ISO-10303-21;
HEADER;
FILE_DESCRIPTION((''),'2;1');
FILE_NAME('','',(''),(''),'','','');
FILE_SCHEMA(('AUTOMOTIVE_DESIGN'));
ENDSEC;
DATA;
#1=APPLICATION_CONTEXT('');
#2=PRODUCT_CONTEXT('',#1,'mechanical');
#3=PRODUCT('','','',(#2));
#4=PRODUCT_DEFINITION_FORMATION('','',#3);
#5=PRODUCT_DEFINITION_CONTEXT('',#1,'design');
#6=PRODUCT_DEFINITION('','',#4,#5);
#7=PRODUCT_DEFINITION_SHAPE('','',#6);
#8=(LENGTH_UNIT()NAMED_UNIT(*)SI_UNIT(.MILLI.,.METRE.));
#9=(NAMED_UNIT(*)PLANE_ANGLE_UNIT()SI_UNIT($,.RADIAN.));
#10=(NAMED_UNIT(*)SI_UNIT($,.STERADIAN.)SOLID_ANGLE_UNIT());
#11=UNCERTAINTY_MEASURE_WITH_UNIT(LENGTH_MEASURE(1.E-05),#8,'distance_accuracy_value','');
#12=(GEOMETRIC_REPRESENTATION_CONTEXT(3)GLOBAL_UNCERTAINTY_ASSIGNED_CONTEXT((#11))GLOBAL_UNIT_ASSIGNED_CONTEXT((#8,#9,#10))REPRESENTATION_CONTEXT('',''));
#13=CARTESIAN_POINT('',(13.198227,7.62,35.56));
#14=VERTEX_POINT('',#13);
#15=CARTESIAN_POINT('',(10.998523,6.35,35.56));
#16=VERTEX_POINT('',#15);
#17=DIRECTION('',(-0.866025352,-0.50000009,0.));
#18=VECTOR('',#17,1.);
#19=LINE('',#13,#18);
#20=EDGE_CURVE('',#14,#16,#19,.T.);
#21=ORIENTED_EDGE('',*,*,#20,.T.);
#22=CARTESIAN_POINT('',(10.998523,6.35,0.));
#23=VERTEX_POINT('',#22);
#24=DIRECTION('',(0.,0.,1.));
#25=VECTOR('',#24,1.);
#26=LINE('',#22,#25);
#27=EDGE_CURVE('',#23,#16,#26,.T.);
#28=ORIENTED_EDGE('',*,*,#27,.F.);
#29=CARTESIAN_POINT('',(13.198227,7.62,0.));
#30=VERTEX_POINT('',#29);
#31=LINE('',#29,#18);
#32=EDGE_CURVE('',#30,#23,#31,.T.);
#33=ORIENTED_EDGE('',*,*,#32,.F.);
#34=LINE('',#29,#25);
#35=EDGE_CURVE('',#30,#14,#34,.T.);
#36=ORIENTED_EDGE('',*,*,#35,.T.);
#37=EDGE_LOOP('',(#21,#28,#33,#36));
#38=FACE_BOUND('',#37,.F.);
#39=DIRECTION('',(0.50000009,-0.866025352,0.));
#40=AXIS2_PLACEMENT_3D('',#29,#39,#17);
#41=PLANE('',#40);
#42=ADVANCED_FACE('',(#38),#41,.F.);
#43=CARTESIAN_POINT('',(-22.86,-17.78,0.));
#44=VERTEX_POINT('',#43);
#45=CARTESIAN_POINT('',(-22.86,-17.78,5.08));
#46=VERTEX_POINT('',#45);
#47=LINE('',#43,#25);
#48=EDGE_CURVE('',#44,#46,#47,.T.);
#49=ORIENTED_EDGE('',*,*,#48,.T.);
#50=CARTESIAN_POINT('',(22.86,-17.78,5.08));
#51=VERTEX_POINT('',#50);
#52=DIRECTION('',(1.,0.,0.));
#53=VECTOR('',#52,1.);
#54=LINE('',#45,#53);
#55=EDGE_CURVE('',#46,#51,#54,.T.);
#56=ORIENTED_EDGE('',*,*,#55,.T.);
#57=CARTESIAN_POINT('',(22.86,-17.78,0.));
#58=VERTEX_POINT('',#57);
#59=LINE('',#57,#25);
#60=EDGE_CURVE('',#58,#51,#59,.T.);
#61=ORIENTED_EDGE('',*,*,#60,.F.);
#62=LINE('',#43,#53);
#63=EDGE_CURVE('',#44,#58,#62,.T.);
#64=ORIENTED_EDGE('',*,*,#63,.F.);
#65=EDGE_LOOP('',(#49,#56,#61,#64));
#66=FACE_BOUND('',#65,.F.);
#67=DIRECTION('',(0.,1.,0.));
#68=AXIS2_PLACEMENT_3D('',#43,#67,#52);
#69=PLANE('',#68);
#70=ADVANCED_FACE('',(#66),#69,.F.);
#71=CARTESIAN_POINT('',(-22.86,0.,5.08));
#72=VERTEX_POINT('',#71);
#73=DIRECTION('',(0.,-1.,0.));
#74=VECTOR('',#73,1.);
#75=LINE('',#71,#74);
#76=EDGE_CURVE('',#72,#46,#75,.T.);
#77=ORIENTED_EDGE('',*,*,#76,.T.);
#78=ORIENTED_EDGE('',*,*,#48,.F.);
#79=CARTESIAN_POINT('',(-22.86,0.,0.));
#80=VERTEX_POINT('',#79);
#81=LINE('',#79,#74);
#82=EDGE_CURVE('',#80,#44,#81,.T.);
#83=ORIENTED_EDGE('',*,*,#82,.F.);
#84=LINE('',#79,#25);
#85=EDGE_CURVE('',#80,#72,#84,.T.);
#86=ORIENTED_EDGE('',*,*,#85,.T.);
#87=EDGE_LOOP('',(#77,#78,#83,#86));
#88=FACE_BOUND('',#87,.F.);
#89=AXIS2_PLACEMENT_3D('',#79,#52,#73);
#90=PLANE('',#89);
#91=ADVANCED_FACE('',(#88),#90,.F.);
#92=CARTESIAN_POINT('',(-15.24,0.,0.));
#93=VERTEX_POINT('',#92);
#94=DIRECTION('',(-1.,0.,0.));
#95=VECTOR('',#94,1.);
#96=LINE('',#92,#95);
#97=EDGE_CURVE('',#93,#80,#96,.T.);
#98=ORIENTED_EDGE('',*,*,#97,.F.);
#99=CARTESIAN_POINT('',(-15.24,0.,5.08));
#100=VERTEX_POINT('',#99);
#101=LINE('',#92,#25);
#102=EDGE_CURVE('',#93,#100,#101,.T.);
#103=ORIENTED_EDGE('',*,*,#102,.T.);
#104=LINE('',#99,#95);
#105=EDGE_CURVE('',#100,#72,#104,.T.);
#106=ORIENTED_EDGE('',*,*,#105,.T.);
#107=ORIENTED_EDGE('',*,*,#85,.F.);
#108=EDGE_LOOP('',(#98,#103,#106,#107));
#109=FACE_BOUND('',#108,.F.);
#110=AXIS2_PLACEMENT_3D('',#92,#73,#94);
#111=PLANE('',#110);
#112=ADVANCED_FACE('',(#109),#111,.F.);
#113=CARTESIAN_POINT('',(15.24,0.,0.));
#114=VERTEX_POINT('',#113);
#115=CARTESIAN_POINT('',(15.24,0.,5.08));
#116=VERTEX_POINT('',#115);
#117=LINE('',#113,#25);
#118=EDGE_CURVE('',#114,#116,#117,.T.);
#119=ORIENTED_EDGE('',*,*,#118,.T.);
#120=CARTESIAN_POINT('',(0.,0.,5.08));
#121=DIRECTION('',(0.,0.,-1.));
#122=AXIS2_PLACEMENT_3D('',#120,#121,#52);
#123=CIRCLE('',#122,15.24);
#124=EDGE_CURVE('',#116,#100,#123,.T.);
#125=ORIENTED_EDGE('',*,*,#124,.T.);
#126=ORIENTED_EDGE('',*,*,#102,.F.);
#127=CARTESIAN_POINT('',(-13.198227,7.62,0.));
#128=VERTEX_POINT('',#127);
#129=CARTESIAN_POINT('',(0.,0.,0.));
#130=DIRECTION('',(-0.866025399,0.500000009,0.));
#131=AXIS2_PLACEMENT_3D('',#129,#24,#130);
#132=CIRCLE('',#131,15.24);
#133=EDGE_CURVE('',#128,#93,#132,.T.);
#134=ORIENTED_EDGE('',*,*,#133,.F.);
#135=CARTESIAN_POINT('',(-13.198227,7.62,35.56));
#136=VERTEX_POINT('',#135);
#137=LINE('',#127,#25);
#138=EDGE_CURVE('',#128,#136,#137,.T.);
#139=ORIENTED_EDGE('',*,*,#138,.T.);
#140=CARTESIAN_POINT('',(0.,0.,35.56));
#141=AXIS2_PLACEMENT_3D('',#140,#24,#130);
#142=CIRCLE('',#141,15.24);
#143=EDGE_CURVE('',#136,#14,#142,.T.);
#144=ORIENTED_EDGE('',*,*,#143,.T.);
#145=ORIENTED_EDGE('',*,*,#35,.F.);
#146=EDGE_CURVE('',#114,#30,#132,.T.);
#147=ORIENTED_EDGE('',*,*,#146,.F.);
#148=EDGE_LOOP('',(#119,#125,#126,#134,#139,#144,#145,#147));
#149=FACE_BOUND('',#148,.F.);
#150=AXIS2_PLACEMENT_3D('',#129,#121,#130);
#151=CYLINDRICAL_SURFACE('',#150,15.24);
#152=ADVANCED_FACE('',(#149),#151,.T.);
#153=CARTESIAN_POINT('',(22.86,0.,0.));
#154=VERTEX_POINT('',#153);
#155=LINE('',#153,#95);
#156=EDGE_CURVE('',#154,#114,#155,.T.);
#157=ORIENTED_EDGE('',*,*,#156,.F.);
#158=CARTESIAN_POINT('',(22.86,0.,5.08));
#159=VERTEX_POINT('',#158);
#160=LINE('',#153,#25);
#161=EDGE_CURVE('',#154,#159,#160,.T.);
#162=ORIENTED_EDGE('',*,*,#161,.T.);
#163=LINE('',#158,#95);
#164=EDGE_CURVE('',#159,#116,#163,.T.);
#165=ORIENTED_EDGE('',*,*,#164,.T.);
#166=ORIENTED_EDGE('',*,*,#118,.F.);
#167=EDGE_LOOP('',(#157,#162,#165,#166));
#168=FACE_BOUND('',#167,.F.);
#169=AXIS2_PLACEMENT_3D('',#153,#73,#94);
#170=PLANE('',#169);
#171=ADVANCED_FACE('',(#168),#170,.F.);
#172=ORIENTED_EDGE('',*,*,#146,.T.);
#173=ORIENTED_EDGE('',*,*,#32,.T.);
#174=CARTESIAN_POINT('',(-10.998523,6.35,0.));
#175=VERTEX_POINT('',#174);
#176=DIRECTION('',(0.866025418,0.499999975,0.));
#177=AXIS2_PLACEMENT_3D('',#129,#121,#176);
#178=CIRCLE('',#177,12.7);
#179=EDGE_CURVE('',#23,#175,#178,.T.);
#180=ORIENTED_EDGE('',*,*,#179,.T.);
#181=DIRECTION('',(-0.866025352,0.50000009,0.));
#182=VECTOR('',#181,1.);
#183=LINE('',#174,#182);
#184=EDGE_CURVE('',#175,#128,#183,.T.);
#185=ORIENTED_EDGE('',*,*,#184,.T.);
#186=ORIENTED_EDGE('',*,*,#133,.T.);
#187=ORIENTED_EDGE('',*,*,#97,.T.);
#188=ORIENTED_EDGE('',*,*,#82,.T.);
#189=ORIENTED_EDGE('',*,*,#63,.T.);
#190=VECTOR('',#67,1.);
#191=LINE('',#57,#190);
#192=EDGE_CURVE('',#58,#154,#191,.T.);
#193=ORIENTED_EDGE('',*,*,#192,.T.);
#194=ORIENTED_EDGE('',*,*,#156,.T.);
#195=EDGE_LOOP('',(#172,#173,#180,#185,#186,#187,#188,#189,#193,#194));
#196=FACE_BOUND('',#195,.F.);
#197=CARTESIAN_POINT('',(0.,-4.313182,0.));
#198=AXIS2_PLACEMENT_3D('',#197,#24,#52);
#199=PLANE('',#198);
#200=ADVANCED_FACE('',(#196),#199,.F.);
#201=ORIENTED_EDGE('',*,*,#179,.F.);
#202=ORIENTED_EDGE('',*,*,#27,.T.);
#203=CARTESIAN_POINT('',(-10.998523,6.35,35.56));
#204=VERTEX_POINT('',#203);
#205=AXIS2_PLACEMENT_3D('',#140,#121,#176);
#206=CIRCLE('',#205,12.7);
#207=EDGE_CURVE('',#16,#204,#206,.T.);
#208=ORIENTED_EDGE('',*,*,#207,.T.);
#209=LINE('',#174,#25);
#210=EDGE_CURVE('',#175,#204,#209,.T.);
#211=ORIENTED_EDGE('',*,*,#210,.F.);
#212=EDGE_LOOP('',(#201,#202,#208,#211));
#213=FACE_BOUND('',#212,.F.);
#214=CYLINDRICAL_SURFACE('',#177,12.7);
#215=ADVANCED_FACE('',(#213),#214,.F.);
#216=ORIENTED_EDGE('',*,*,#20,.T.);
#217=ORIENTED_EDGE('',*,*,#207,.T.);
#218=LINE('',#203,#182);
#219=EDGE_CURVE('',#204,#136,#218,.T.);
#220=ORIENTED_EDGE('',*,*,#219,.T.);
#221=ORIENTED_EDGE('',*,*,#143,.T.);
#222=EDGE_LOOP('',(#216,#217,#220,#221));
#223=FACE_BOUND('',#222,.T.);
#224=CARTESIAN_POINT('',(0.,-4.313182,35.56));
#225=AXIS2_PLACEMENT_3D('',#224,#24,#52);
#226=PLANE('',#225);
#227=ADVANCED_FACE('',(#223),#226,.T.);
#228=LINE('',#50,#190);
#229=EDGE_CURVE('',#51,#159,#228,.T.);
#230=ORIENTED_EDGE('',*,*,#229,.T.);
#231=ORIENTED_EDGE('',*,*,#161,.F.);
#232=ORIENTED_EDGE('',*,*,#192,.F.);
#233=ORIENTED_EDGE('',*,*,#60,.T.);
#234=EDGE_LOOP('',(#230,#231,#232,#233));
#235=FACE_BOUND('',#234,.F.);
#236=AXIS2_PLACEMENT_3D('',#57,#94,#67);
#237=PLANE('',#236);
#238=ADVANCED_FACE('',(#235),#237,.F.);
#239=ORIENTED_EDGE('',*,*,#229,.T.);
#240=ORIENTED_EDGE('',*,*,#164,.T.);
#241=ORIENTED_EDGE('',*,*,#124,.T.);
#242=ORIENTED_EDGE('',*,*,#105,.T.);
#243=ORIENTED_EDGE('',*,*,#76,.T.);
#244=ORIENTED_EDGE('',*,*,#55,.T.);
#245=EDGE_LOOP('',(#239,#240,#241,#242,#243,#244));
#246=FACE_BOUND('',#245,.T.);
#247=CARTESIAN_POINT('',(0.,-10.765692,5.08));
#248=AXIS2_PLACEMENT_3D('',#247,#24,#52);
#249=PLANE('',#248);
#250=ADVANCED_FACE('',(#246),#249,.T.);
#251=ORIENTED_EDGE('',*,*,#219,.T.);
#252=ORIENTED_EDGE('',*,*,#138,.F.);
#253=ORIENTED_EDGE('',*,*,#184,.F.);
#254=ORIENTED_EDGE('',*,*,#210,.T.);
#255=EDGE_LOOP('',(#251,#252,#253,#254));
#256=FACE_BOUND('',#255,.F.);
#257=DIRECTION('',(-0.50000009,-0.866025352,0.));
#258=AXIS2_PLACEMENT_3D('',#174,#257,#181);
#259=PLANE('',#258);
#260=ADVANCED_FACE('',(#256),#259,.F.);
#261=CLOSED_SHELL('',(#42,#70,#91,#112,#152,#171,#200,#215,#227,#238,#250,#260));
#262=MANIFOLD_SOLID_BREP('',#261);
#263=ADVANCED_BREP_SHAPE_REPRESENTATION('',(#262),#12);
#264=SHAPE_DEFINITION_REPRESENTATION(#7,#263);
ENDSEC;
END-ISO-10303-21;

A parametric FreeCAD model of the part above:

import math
import FreeCAD as App
import Part
import Sketcher
from FreeCAD import Vector
Q = App.Units.Quantity

doc = App.newDocument("Part")
body = doc.addObject("PartDesign::Body", "Body")

# Sketch on XY plane
sketch1 = body.newObject("Sketcher::SketchObject", "Sketch")
sketch1.AttachmentSupport = (doc.getObject("XY_Plane"), [""])
sketch1.MapMode = "FlatFace"
sketch1.addGeometry(Part.ArcOfCircle(Part.Circle(Vector(0, 0, 0), Vector(0, 0, 1), 12.7), math.radians(150), math.radians(390)), False)
sketch1.addGeometry(Part.LineSegment(Vector(-11, 6.3, 0), Vector(-13.2, 7.6, 0)), False)
sketch1.addGeometry(Part.ArcOfCircle(Part.Circle(Vector(0, 0, 0), Vector(0, 0, 1), 15.2), math.radians(150), math.radians(390)), False)
sketch1.addGeometry(Part.LineSegment(Vector(13.2, 7.6, 0), Vector(11, 6.3, 0)), False)
sketch1.addConstraint(Sketcher.Constraint("Coincident", 0, 1, 1, 1))
sketch1.addConstraint(Sketcher.Constraint("Coincident", 1, 2, 2, 1))
sketch1.addConstraint(Sketcher.Constraint("Coincident", 2, 2, 3, 1))
sketch1.addConstraint(Sketcher.Constraint("Coincident", 3, 2, 0, 2))
sketch1.addConstraint(Sketcher.Constraint("Coincident", 0, 3, -1, 1))
sketch1.addConstraint(Sketcher.Constraint("Coincident", 2, 3, -1, 1))
sketch1.addConstraint(Sketcher.Constraint("Horizontal", 1, 2, 2, 2))
sketch1.addConstraint(Sketcher.Constraint("Horizontal", 0, 1, 3, 2))
sketch1.addConstraint(Sketcher.Constraint("Radius", 0, Q("0.5 in")))
sketch1.addConstraint(Sketcher.Constraint("Radius", 2, Q("0.6 in")))
sketch1.addConstraint(Sketcher.Constraint("Angle", 1, Q("149.999994 deg")))
sketch1.addConstraint(Sketcher.Constraint("DistanceY", -1, 1, 1, 2, Q("0.3 in")))
pad1 = body.newObject("PartDesign::Pad", "Pad")
pad1.Profile = sketch1
pad1.Length = Q("1.4 in")

# Sketch on XY plane
sketch2 = body.newObject("Sketcher::SketchObject", "Sketch001")
sketch2.AttachmentSupport = (doc.getObject("XY_Plane"), [""])
sketch2.MapMode = "FlatFace"
sketch2.addGeometry(Part.LineSegment(Vector(23, 0, 0), Vector(15, 0, 0)), False)
sketch2.addGeometry(Part.ArcOfCircle(Part.Circle(Vector(0, 0, 0), Vector(0, 0, 1), 15), math.radians(180), math.radians(360)), False)
sketch2.addGeometry(Part.LineSegment(Vector(-15, 0, 0), Vector(-23, 0, 0)), False)
sketch2.addGeometry(Part.LineSegment(Vector(-23, 0, 0), Vector(-23, -18, 0)), False)
sketch2.addGeometry(Part.LineSegment(Vector(-23, -18, 0), Vector(23, -18, 0)), False)
sketch2.addGeometry(Part.LineSegment(Vector(23, -18, 0), Vector(23, 0, 0)), False)
sketch2.addConstraint(Sketcher.Constraint("Coincident", 0, 2, 1, 2))
sketch2.addConstraint(Sketcher.Constraint("Coincident", 1, 1, 2, 1))
sketch2.addConstraint(Sketcher.Constraint("Coincident", 2, 2, 3, 1))
sketch2.addConstraint(Sketcher.Constraint("Coincident", 3, 2, 4, 1))
sketch2.addConstraint(Sketcher.Constraint("Coincident", 4, 2, 5, 1))
sketch2.addConstraint(Sketcher.Constraint("Coincident", 5, 2, 0, 1))
sketch2.addConstraint(Sketcher.Constraint("Horizontal", 0))
sketch2.addConstraint(Sketcher.Constraint("Horizontal", 2))
sketch2.addConstraint(Sketcher.Constraint("Vertical", 3))
sketch2.addConstraint(Sketcher.Constraint("Horizontal", 4))
sketch2.addConstraint(Sketcher.Constraint("Vertical", 5))
sketch2.addConstraint(Sketcher.Constraint("Coincident", 1, 3, -1, 1))
sketch2.addConstraint(Sketcher.Constraint("Symmetric", 2, 2, 5, 2, -1, 1))
sketch2.addConstraint(Sketcher.Constraint("PointOnObject", 0, 2, -1))
sketch2.addConstraint(Sketcher.Constraint("Radius", 1, Q("0.6 in")))
sketch2.addConstraint(Sketcher.Constraint("DistanceX", 0, 2, 0, 1, Q("0.3 in")))
sketch2.addConstraint(Sketcher.Constraint("DistanceY", 3, 2, 3, 1, Q("0.7 in")))
pad2 = body.newObject("PartDesign::Pad", "Pad001")
pad2.Profile = sketch2
pad2.Length = Q("0.2 in")

doc.recompute()
